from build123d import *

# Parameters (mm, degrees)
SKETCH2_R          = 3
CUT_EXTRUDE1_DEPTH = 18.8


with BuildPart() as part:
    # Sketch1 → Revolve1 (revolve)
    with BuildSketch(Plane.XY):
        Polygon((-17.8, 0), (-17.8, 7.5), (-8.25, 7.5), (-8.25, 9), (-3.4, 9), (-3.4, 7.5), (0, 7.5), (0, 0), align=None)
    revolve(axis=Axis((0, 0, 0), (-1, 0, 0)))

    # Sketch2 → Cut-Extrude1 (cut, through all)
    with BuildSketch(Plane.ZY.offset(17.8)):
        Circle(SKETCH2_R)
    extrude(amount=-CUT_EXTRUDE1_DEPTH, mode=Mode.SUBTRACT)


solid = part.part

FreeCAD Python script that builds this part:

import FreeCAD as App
import Part
import Sketcher

V = App.Vector

doc = App.newDocument("Part")
body = doc.addObject("PartDesign::Body", "Body")

# Sketch on XY plane
sketch1 = doc.addObject("Sketcher::SketchObject", "Sketch")
body.addObject(sketch1)
sketch1.AttachmentSupport = (doc.XY_Plane, [""])
sketch1.MapMode = "FlatFace"
sketch1.addGeometry(Part.LineSegment(V(-17.8, 7.5, 0), V(-17.8, 0, 0)), False)
sketch1.addGeometry(Part.LineSegment(V(-17.8, 0, 0), V(0, 0, 0)), False)
sketch1.addGeometry(Part.LineSegment(V(0, 0, 0), V(0, 7.5, 0)), False)
sketch1.addGeometry(Part.LineSegment(V(0, 7.5, 0), V(-3.4, 7.5, 0)), False)
sketch1.addGeometry(Part.LineSegment(V(-3.4, 7.5, 0), V(-3.4, 9, 0)), False)
sketch1.addGeometry(Part.LineSegment(V(-3.4, 9, 0), V(-8.25, 9, 0)), False)
sketch1.addGeometry(Part.LineSegment(V(-8.25, 9, 0), V(-8.25, 7.5, 0)), False)
sketch1.addGeometry(Part.LineSegment(V(-8.25, 7.5, 0), V(-17.8, 7.5, 0)), False)
sketch1.addConstraint(Sketcher.Constraint("Coincident", 0, 2, 1, 1))
sketch1.addConstraint(Sketcher.Constraint("Coincident", 1, 2, 2, 1))
sketch1.addConstraint(Sketcher.Constraint("Coincident", 2, 2, 3, 1))
sketch1.addConstraint(Sketcher.Constraint("Coincident", 3, 2, 4, 1))
sketch1.addConstraint(Sketcher.Constraint("Coincident", 4, 2, 5, 1))
sketch1.addConstraint(Sketcher.Constraint("Coincident", 5, 2, 6, 1))
sketch1.addConstraint(Sketcher.Constraint("Coincident", 6, 2, 7, 1))
sketch1.addConstraint(Sketcher.Constraint("Coincident", 7, 2, 0, 1))
sketch1.addConstraint(Sketcher.Constraint("Vertical", 0))
sketch1.addConstraint(Sketcher.Constraint("Horizontal", 1))
sketch1.addConstraint(Sketcher.Constraint("Vertical", 2))
sketch1.addConstraint(Sketcher.Constraint("Horizontal", 3))
sketch1.addConstraint(Sketcher.Constraint("Vertical", 4))
sketch1.addConstraint(Sketcher.Constraint("Horizontal", 5))
sketch1.addConstraint(Sketcher.Constraint("Vertical", 6))
sketch1.addConstraint(Sketcher.Constraint("Horizontal", 7))
sketch1.addConstraint(Sketcher.Constraint("Coincident", 1, 2, -1, 1))
sketch1.addConstraint(Sketcher.Constraint("Horizontal", 3, 2, 6, 2))
sketch1.addConstraint(Sketcher.Constraint("DistanceX", 1, 1, 1, 2, 17.8))
sketch1.addConstraint(Sketcher.Constraint("DistanceX", 3, 2, 3, 1, 3.4))
sketch1.addConstraint(Sketcher.Constraint("DistanceY", 0, 2, 0, 1, 7.5))
sketch1.addConstraint(Sketcher.Constraint("DistanceY", 4, 1, 4, 2, 1.5))
sketch1.addConstraint(Sketcher.Constraint("DistanceX", 5, 2, 5, 1, 4.85))
revolution = doc.addObject("PartDesign::Revolution", "Revolution")
body.addObject(revolution)
revolution.Profile = sketch1
revolution.ReferenceAxis = (sketch1, ["H_Axis"])
revolution.Angle = 360

# Sketch on YZ plane
sketch2 = doc.addObject("Sketcher::SketchObject", "Sketch001")
body.addObject(sketch2)
sketch2.AttachmentSupport = (doc.YZ_Plane, [""])
sketch2.MapMode = "FlatFace"
sketch2.AttachmentOffset = App.Placement(V(0, 0, -17.8), App.Rotation())
sketch2.addGeometry(Part.Circle(V(0, 0, 0), V(0, 0, 1), 3), False)
sketch2.addConstraint(Sketcher.Constraint("Coincident", 0, 3, -1, 1))
sketch2.addConstraint(Sketcher.Constraint("Diameter", 0, 6.0))
pocket1 = doc.addObject("PartDesign::Pocket", "Pocket")
body.addObject(pocket1)
pocket1.Profile = sketch2
pocket1.Type = "ThroughAll"
pocket1.Reversed = True

doc.recompute()
